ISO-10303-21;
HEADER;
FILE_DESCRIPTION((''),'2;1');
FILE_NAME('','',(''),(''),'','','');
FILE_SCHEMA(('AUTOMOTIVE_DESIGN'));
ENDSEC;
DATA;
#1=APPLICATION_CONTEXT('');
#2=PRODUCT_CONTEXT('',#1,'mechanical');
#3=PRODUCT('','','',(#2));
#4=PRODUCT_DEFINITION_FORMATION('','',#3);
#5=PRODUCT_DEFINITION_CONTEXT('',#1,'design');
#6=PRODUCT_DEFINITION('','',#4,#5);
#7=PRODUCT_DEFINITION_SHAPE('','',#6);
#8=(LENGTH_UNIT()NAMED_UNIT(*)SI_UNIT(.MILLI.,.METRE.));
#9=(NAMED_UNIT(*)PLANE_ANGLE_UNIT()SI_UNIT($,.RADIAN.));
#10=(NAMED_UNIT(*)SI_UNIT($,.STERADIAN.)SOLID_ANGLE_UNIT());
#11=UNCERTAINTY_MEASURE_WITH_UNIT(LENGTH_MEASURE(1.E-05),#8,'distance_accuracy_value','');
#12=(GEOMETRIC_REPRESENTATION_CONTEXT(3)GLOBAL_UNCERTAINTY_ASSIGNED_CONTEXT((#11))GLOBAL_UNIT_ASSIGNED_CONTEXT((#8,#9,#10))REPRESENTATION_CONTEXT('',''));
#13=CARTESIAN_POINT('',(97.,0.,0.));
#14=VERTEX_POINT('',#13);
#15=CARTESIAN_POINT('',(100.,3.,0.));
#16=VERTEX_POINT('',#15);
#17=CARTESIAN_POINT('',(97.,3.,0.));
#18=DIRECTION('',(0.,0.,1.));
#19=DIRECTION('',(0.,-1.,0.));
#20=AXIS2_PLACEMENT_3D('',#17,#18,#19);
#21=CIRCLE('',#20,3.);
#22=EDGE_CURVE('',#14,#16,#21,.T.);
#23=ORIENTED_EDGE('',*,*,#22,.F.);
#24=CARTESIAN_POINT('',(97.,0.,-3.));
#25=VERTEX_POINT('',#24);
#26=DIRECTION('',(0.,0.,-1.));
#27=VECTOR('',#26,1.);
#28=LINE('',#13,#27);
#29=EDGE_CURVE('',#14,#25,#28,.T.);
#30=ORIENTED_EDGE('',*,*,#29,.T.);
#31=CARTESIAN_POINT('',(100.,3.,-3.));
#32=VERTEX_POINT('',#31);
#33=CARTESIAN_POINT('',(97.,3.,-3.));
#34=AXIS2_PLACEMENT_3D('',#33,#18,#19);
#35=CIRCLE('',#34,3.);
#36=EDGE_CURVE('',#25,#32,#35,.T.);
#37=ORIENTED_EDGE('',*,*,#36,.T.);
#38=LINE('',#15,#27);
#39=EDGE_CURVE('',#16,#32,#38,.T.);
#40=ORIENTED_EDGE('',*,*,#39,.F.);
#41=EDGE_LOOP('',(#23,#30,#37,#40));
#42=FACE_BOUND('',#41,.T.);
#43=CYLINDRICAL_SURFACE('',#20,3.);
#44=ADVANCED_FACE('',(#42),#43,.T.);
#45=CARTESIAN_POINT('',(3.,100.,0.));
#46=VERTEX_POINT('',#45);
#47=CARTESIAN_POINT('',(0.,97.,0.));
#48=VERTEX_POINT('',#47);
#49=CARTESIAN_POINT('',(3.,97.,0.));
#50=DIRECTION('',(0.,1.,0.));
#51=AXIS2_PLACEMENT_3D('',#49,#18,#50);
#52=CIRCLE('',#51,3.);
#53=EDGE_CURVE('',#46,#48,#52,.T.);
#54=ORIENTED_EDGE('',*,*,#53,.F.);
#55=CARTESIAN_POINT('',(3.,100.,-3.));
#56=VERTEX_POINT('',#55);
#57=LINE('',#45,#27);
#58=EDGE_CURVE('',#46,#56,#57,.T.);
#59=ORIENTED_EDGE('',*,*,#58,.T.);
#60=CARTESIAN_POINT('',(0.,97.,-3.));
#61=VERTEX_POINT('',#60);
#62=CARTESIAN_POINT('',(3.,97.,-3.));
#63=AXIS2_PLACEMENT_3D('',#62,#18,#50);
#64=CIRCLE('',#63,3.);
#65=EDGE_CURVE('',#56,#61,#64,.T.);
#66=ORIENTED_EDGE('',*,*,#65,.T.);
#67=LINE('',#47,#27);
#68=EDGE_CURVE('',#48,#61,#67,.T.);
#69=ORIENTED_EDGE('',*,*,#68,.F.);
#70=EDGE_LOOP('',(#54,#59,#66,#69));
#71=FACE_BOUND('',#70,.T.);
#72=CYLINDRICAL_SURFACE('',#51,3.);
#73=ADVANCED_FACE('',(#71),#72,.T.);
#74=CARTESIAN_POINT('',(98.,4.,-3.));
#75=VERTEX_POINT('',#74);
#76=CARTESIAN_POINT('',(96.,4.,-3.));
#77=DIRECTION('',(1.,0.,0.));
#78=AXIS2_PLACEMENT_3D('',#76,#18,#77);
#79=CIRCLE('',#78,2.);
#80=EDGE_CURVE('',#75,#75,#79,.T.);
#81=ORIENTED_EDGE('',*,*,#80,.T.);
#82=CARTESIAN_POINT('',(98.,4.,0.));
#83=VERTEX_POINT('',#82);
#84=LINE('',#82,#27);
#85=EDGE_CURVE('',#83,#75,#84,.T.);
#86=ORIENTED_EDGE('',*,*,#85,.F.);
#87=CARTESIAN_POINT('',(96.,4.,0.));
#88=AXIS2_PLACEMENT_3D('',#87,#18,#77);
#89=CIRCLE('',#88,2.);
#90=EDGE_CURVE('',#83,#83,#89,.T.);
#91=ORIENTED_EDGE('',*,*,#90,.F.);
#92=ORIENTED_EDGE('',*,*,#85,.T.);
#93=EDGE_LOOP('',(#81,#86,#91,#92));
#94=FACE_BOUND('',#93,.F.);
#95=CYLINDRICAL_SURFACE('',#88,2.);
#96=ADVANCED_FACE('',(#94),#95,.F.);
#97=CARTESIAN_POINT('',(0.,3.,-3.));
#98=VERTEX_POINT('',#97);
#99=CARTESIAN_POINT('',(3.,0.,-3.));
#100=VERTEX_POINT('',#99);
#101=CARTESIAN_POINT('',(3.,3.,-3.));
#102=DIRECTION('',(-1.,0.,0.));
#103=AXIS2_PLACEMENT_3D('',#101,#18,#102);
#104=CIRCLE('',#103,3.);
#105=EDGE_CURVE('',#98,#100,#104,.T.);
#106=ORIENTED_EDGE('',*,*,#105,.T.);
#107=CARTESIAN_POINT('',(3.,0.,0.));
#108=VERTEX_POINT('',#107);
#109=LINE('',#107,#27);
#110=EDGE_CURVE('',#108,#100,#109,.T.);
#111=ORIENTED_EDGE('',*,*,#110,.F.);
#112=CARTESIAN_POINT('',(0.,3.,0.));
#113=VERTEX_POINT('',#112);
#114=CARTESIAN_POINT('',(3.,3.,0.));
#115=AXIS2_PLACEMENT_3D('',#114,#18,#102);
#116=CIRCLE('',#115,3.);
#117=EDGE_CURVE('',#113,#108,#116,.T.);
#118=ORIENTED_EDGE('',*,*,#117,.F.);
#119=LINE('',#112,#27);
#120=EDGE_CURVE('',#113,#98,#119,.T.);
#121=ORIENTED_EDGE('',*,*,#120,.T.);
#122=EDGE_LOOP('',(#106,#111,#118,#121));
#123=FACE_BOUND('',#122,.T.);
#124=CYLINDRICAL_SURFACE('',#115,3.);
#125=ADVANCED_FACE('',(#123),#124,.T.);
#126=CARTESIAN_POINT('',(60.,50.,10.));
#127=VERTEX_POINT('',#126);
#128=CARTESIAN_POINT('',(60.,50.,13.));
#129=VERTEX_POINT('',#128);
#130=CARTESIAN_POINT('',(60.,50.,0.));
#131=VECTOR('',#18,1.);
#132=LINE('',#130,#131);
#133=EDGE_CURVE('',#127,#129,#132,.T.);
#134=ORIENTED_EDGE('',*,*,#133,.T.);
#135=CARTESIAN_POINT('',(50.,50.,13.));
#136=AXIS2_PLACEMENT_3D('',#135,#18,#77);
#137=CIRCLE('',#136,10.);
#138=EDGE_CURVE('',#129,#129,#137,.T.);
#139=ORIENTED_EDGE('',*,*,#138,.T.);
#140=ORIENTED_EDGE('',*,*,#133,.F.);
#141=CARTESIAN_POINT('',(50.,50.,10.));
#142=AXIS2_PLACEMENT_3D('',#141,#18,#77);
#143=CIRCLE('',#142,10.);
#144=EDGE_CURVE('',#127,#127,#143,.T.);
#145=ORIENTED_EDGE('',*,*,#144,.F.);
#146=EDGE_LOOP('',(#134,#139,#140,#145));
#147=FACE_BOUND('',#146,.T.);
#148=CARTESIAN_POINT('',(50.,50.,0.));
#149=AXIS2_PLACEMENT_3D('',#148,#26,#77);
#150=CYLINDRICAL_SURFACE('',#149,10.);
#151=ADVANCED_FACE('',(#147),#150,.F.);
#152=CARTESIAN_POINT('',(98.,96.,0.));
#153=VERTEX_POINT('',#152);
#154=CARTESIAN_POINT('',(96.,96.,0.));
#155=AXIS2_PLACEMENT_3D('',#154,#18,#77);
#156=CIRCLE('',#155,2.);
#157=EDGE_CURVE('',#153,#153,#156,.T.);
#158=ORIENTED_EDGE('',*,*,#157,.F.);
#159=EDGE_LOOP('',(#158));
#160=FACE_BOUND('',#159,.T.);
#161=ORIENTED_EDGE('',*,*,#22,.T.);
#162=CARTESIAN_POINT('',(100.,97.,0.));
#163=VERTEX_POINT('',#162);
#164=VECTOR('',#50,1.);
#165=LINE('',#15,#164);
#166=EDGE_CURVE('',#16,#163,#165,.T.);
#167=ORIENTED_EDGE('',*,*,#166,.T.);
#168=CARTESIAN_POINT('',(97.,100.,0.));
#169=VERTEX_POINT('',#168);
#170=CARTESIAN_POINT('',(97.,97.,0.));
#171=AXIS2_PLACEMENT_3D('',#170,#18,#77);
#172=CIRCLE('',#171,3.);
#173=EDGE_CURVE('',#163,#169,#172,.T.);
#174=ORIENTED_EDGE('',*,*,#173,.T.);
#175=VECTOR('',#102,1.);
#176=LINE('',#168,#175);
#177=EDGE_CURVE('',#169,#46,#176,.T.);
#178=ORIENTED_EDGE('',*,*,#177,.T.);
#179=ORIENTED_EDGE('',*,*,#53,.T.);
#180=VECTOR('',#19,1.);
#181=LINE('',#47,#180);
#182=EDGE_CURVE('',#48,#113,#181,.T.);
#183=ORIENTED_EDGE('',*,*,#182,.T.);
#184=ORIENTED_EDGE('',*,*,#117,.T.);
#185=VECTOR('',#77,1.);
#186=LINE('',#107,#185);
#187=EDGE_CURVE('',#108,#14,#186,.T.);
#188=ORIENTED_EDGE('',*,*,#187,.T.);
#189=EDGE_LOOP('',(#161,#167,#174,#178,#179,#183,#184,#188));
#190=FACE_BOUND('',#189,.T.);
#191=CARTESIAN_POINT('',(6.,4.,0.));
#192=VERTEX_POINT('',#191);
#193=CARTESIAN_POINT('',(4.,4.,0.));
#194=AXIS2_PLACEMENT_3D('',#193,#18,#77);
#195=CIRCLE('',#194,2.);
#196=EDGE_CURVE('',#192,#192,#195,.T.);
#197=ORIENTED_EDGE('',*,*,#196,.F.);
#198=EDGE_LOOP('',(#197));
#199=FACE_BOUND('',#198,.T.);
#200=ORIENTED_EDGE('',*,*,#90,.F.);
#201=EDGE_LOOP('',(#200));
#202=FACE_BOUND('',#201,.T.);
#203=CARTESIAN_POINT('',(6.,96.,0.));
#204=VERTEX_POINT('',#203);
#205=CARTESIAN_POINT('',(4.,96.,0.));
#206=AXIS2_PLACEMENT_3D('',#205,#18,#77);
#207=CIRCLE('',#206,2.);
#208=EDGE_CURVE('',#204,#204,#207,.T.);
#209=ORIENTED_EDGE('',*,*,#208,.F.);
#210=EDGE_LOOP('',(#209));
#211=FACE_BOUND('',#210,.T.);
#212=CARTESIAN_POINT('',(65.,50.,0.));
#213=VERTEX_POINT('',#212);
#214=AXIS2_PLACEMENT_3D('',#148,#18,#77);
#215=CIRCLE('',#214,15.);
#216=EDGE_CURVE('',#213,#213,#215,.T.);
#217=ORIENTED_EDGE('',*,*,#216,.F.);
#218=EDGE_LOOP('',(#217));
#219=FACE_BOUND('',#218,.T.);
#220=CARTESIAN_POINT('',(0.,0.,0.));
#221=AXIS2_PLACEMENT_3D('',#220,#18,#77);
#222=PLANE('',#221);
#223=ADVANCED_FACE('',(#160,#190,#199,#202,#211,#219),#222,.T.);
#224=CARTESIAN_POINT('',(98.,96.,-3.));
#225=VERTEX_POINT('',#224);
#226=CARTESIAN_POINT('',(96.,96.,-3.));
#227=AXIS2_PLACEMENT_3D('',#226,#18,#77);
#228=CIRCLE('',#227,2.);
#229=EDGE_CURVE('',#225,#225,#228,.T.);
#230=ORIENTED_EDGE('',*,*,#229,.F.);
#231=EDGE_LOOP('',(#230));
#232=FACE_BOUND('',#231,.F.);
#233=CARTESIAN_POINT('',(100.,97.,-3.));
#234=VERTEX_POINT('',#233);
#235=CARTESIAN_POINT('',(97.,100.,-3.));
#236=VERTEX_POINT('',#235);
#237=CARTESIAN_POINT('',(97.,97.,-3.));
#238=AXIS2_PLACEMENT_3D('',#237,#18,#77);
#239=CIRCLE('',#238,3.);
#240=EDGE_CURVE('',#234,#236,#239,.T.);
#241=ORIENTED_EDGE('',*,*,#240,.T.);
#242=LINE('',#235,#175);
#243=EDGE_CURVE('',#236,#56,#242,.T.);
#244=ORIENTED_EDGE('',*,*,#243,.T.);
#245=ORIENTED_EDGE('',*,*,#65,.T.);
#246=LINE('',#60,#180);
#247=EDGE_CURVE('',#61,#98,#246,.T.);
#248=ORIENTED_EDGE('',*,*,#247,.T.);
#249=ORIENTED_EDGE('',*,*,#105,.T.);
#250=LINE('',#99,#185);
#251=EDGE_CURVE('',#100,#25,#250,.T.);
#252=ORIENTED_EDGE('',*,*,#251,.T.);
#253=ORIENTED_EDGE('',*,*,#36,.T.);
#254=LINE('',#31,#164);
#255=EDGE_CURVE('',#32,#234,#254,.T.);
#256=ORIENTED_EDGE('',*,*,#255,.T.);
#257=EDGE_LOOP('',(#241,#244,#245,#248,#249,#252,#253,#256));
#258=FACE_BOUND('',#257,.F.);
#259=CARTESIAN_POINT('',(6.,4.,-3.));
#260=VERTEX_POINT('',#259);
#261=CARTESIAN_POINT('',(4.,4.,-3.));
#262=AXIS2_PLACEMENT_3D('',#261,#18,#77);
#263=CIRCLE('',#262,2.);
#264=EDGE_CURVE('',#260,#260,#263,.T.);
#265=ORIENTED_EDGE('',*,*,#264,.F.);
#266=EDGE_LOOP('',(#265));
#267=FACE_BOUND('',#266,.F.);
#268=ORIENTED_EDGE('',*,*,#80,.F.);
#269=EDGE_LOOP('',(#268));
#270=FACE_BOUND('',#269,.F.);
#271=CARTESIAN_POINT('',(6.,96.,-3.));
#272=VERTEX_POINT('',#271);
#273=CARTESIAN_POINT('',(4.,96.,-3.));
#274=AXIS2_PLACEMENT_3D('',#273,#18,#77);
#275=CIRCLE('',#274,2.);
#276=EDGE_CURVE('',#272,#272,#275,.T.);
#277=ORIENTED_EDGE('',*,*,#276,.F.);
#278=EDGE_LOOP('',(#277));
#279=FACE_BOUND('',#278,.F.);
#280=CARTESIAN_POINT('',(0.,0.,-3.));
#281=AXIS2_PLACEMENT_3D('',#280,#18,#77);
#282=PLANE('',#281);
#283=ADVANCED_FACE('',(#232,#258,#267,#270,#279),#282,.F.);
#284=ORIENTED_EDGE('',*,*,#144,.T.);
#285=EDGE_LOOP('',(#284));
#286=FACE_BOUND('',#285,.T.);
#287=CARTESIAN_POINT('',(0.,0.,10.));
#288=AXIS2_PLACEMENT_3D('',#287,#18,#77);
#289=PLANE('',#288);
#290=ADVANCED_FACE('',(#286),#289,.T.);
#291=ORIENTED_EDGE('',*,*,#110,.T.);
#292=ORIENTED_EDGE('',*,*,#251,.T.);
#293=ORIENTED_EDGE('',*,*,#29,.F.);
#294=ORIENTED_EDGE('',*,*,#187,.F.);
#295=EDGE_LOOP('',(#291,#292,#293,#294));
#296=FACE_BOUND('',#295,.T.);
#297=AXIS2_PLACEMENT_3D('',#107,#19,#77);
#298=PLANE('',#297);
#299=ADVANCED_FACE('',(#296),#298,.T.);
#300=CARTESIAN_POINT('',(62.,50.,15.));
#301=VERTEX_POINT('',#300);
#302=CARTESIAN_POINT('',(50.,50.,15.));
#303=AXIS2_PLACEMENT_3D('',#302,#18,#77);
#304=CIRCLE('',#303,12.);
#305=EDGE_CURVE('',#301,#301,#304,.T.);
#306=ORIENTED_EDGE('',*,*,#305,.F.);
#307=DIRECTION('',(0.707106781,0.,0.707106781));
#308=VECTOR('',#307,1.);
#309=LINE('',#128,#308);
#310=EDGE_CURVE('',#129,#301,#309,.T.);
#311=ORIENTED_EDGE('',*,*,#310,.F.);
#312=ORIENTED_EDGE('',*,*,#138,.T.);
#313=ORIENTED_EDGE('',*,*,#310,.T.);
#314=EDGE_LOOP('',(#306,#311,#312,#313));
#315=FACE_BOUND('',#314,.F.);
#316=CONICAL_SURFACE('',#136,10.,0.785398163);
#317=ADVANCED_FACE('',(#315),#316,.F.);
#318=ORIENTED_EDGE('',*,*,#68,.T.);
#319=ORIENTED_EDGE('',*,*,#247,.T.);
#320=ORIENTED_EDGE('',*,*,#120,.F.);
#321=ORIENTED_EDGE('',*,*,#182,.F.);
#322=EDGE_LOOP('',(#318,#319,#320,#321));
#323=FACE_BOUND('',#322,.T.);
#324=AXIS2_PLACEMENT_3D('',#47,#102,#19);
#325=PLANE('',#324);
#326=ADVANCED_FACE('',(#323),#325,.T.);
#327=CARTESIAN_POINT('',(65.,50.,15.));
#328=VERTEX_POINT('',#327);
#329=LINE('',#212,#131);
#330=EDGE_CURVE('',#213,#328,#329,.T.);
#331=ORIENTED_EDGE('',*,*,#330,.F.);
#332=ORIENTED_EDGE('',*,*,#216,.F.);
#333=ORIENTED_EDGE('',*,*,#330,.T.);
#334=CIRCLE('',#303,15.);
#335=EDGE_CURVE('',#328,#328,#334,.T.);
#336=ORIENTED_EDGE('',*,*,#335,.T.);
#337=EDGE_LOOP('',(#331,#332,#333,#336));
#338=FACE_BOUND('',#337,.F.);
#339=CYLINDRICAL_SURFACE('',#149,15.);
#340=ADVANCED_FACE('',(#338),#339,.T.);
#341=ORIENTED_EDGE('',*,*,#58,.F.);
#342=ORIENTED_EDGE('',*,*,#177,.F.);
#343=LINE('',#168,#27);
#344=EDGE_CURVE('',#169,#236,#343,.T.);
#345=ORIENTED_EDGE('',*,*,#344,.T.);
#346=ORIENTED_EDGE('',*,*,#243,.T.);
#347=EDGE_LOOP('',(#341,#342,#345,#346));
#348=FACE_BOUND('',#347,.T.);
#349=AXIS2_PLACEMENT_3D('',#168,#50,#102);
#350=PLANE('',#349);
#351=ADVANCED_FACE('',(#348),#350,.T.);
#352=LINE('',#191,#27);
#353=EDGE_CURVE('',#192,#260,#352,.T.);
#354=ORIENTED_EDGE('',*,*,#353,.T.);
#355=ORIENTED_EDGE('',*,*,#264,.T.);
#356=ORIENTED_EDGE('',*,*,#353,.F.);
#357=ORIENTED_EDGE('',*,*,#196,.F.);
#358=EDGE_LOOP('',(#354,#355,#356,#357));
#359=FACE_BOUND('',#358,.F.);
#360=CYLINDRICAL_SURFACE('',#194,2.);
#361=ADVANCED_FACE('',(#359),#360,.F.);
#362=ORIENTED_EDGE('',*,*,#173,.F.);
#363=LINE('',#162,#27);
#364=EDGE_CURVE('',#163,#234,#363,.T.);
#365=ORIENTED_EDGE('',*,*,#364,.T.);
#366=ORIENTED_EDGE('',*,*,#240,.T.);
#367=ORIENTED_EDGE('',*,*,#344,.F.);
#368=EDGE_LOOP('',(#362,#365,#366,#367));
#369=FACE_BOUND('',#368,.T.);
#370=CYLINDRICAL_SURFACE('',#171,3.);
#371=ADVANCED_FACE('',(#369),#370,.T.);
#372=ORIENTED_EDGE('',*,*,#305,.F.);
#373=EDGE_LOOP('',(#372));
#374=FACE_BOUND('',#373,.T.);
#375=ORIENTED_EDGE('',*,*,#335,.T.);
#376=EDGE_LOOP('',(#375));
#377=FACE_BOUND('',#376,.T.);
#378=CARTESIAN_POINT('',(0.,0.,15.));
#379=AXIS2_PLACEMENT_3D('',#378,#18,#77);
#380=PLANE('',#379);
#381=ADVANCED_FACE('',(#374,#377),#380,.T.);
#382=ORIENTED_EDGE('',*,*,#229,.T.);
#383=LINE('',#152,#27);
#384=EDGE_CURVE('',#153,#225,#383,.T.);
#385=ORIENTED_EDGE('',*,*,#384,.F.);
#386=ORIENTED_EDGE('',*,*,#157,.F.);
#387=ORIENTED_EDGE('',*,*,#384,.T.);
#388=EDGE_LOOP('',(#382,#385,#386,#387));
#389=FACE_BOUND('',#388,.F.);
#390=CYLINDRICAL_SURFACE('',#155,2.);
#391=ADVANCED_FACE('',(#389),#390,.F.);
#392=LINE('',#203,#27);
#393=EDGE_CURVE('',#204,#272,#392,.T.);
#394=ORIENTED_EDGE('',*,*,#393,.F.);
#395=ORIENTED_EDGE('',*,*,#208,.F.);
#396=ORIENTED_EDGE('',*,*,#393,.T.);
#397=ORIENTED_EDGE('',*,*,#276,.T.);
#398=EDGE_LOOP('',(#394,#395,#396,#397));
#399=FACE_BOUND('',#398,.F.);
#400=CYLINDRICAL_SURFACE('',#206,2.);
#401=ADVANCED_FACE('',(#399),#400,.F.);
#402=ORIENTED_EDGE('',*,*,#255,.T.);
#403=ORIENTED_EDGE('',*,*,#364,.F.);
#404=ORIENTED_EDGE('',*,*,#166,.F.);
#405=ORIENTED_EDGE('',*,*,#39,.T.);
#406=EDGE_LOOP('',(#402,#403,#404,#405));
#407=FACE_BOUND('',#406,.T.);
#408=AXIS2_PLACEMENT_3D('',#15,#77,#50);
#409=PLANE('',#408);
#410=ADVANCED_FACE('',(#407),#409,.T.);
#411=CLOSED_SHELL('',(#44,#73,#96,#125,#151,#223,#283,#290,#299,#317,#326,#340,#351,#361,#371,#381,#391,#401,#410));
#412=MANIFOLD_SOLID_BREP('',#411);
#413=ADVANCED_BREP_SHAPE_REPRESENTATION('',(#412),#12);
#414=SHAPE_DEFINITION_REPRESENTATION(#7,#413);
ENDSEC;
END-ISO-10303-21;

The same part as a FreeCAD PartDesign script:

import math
import FreeCAD as App
import Part
import Sketcher

V = App.Vector
Q = App.Units.Quantity


def edges_at(feature, points):
    """Names of the edges that pass closest to the given points."""
    edges = feature.Shape.Edges
    near = lambda p: min(range(len(edges)), key=lambda i: edges[i].distToShape(Part.Vertex(*p))[0])
    return sorted({f"Edge{near(p) + 1}" for p in points})

doc = App.newDocument("Part")
body = doc.addObject("PartDesign::Body", "Body")

sketch1 = body.newObject("Sketcher::SketchObject", "Sketch")
sketch1.AttachmentSupport = (doc.getObject("XY_Plane"), [""])
sketch1.MapMode = "FlatFace"
sketch1.addGeometry([
    Part.ArcOfCircle(Part.Circle(V(3, 3, 0), V(0, 0, 1), 3), math.radians(180), math.radians(270)),
    Part.LineSegment(V(3, 0, 0), V(97, 0, 0)),
    Part.ArcOfCircle(Part.Circle(V(97, 3, 0), V(0, 0, 1), 3), math.radians(-90), math.radians(0)),
    Part.LineSegment(V(100, 3, 0), V(100, 97, 0)),
    Part.ArcOfCircle(Part.Circle(V(97, 97, 0), V(0, 0, 1), 3), math.radians(0), math.radians(90)),
    Part.LineSegment(V(97, 100, 0), V(3, 100, 0)),
    Part.ArcOfCircle(Part.Circle(V(3, 97, 0), V(0, 0, 1), 3), math.radians(90), math.radians(180)),
    Part.LineSegment(V(0, 97, 0), V(0, 3, 0)),
    Part.Circle(V(4, 4, 0), V(0, 0, 1), 2),
    Part.Circle(V(96, 4, 0), V(0, 0, 1), 2),
    Part.Circle(V(4, 96, 0), V(0, 0, 1), 2),
    Part.Circle(V(96, 96, 0), V(0, 0, 1), 2),
], False)
sketch1.addConstraint([
    Sketcher.Constraint("Tangent", 0, 2, 1, 1),
    Sketcher.Constraint("Tangent", 1, 2, 2, 1),
    Sketcher.Constraint("Tangent", 2, 2, 3, 1),
    Sketcher.Constraint("Tangent", 3, 2, 4, 1),
    Sketcher.Constraint("Tangent", 4, 2, 5, 1),
    Sketcher.Constraint("Tangent", 5, 2, 6, 1),
    Sketcher.Constraint("Tangent", 6, 2, 7, 1),
    Sketcher.Constraint("Tangent", 7, 2, 0, 1),
    Sketcher.Constraint("Horizontal", 1),
    Sketcher.Constraint("Vertical", 3),
    Sketcher.Constraint("Horizontal", 5),
    Sketcher.Constraint("Vertical", 7),
    Sketcher.Constraint("Equal", 0, 2),
    Sketcher.Constraint("Equal", 2, 4),
    Sketcher.Constraint("Equal", 4, 6),
    Sketcher.Constraint("Equal", 8, 9),
    Sketcher.Constraint("Equal", 9, 10),
    Sketcher.Constraint("Equal", 10, 11),
    Sketcher.Constraint("PointOnObject", 0, 2, -1),
    Sketcher.Constraint("PointOnObject", 6, 2, -2),
    Sketcher.Constraint("Horizontal", 8, 3, 9, 3),
    Sketcher.Constraint("Horizontal", 10, 3, 11, 3),
    Sketcher.Constraint("Vertical", 8, 3, 10, 3),
    Sketcher.Constraint("Vertical", 9, 3, 11, 3),
    Sketcher.Constraint("Equal", 5, 3),
    Sketcher.Constraint("Diameter", 8, Q("4 mm")),
    Sketcher.Constraint("Radius", 0, Q("3 mm")),
    Sketcher.Constraint("DistanceX", -1, 1, 8, 3, Q("4 mm")),
    Sketcher.Constraint("DistanceY", -1, 1, 8, 3, Q("4 mm")),
    Sketcher.Constraint("DistanceX", -1, 1, 2, 2, Q("100 mm")),
    Sketcher.Constraint("DistanceX", 9, 3, 2, 2, Q("4 mm")),
    Sketcher.Constraint("DistanceY", 11, 3, 4, 2, Q("4 mm")),
])
pad1 = body.newObject("PartDesign::Pad", "Pad")
pad1.Profile = sketch1
pad1.Length = 3
pad1.Reversed = True

sketch2 = body.newObject("Sketcher::SketchObject", "Sketch001")
sketch2.AttachmentSupport = (doc.getObject("XY_Plane"), [""])
sketch2.MapMode = "FlatFace"
sketch2.addGeometry([
    Part.Circle(V(50, 50, 0), V(0, 0, 1), 15),
    Part.Circle(V(50, 50, 0), V(0, 0, 1), 10),
], False)
sketch2.addConstraint([
    Sketcher.Constraint("Coincident", 1, 3, 0, 3),
    Sketcher.Constraint("Diameter", 0, Q("30 mm")),
    Sketcher.Constraint("Diameter", 1, Q("20 mm")),
    Sketcher.Constraint("DistanceX", -1, 1, 0, 3, Q("50 mm")),
    Sketcher.Constraint("DistanceY", -1, 1, 0, 3, Q("50 mm")),
])
pad2 = body.newObject("PartDesign::Pad", "Pad001")
pad2.Profile = sketch2
pad2.Length = 15

sketch3 = body.newObject("Sketcher::SketchObject", "Sketch002")
sketch3.AttachmentSupport = (doc.getObject("XY_Plane"), [""])
sketch3.MapMode = "FlatFace"
sketch3.addGeometry(Part.Circle(V(50, 50, 0), V(0, 0, 1), 10), False)
sketch3.addConstraint([
    Sketcher.Constraint("Diameter", 0, Q("20 mm")),
    Sketcher.Constraint("DistanceX", -1, 1, 0, 3, Q("50 mm")),
    Sketcher.Constraint("DistanceY", -1, 1, 0, 3, Q("50 mm")),
])
pad3 = body.newObject("PartDesign::Pad", "Pad002")
pad3.Profile = sketch3
pad3.Length = 10
doc.recompute()

chamfer = body.newObject("PartDesign::Chamfer", "Chamfer")
chamfer.Base = (pad3, edges_at(pad3, [(40, 50, 15)]))
chamfer.Size = 2

doc.recompute()
